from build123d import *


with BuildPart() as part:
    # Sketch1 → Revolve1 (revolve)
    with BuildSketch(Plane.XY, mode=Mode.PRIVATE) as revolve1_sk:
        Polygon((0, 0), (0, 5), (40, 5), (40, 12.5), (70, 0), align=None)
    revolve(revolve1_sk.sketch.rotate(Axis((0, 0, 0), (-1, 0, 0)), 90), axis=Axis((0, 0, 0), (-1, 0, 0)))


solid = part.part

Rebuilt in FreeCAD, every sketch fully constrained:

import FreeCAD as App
import Part
import Sketcher

doc = App.newDocument("Part")
params = doc.addObject("Spreadsheet::Sheet", "Params")
for row, (alias, value) in enumerate([
    ("sketch1_width", "70 mm"),
    ("sketch1_width2", "40 mm"),
    ("sketch1_height", "5 mm"),
    ("sketch1_height2", "7.5 mm"),
    ("revolution_angle", "360 deg"),
], start=1):
    params.set(f"A{row}", alias)
    params.set(f"B{row}", "=" + value)
    params.setAlias(f"B{row}", alias)

body = doc.addObject("PartDesign::Body", "Body")

sketch1 = body.newObject("Sketcher::SketchObject", "Sketch")
sketch1.AttachmentSupport = (doc.getObject("XY_Plane"), [""])
sketch1.MapMode = "FlatFace"
sketch1.addGeometry([
    Part.LineSegment(App.Vector(0, 5, 0), App.Vector(0, 0, 0)),
    Part.LineSegment(App.Vector(0, 0, 0), App.Vector(70, 0, 0)),
    Part.LineSegment(App.Vector(70, 0, 0), App.Vector(40, 12, 0)),
    Part.LineSegment(App.Vector(40, 12, 0), App.Vector(40, 5, 0)),
    Part.LineSegment(App.Vector(40, 5, 0), App.Vector(0, 5, 0)),
], False)
sketch1.addConstraint([
    Sketcher.Constraint("Coincident", 0, 2, 1, 1),
    Sketcher.Constraint("Coincident", 1, 2, 2, 1),
    Sketcher.Constraint("Coincident", 2, 2, 3, 1),
    Sketcher.Constraint("Coincident", 3, 2, 4, 1),
    Sketcher.Constraint("Coincident", 4, 2, 0, 1),
    Sketcher.Constraint("Vertical", 0),
    Sketcher.Constraint("Horizontal", 1),
    Sketcher.Constraint("Vertical", 3),
    Sketcher.Constraint("Horizontal", 4),
    Sketcher.Constraint("Coincident", 0, 2, -1, 1),
    Sketcher.Constraint("DistanceX", 1, 1, 1, 2, 70.0),
    Sketcher.Constraint("DistanceX", 4, 2, 4, 1, 40.0),
    Sketcher.Constraint("DistanceY", 0, 2, 0, 1, 5.0),
    Sketcher.Constraint("DistanceY", 3, 2, 3, 1, 7.5),
])
sketch1.setExpression("Constraints[10]", "Params.sketch1_width")
sketch1.setExpression("Constraints[11]", "Params.sketch1_width2")
sketch1.setExpression("Constraints[12]", "Params.sketch1_height")
sketch1.setExpression("Constraints[13]", "Params.sketch1_height2")
revolution = body.newObject("PartDesign::Revolution", "Revolution")
revolution.Profile = sketch1
revolution.ReferenceAxis = (sketch1, ["H_Axis"])
revolution.setExpression("Angle", "Params.revolution_angle")

doc.recompute()
